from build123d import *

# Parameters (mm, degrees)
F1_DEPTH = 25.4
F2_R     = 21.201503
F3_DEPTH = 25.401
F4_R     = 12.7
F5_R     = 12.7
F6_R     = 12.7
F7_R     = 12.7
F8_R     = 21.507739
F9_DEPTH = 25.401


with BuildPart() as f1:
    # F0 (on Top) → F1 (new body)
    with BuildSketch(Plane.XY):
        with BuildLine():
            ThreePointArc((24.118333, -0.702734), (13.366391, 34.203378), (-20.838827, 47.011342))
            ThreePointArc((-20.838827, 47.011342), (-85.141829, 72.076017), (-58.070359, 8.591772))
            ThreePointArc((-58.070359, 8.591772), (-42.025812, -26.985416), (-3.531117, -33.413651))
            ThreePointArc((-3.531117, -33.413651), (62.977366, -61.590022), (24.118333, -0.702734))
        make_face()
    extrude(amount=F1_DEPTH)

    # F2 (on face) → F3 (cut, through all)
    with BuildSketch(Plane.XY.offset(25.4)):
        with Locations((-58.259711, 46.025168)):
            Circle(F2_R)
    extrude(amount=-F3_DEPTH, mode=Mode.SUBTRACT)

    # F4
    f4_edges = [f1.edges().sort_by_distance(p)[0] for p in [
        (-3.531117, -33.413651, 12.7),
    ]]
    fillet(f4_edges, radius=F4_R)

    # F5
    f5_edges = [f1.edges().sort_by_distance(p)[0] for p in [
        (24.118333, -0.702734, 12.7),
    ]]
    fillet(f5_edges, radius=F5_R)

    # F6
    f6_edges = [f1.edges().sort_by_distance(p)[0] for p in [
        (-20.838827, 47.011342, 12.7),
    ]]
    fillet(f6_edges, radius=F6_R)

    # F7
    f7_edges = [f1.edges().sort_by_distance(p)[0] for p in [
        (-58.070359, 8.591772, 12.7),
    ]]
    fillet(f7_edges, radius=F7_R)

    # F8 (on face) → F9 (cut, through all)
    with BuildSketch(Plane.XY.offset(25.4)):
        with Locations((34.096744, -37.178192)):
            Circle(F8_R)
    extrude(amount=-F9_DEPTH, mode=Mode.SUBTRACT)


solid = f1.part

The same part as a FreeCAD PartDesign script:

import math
import FreeCAD as App
import Part
import Sketcher


def edges_at(feature, points):
    """Names of the edges that pass closest to the given points."""
    edges = feature.Shape.Edges
    near = lambda p: min(range(len(edges)), key=lambda i: edges[i].distToShape(Part.Vertex(*p))[0])
    return sorted({f"Edge{near(p) + 1}" for p in points})

doc = App.newDocument("Part")
params = doc.addObject("Spreadsheet::Sheet", "Params")
for row, (alias, value) in enumerate([
    ("pad1_length", "1 in"),
    ("fillet_radius", "0.5 in"),
    ("fillet2_radius", "0.5 in"),
    ("fillet3_radius", "0.5 in"),
    ("fillet4_radius", "0.5 in"),
], start=1):
    params.set(f"A{row}", alias)
    params.set(f"B{row}", "=" + value)
    params.setAlias(f"B{row}", alias)

body = doc.addObject("PartDesign::Body", "Body")

# Sketch on XY plane
sketch1 = body.newObject("Sketcher::SketchObject", "Sketch")
sketch1.AttachmentSupport = (doc.getObject("XY_Plane"), [""])
sketch1.MapMode = "FlatFace"
sketch1.addGeometry(Part.ArcOfCircle(Part.Circle(App.Vector(-16.764679, 5.813279, 0), App.Vector(0, 0, 1), 41.399022), math.radians(-9.055745), math.radians(95.647717)), False)
sketch1.addGeometry(Part.ArcOfCircle(Part.Circle(App.Vector(-58.25971, 46.025168, 0), App.Vector(0, 0, 1), 37.433875), math.radians(1.509598), math.radians(270.289819)), False)
sketch1.addGeometry(Part.ArcOfCircle(Part.Circle(App.Vector(-16.764679, 5.813279, 0), App.Vector(0, 0, 1), 41.399024), math.radians(176.151704), math.radians(288.642292)), False)
sketch1.addGeometry(Part.ArcOfCircle(Part.Circle(App.Vector(34.096745, -37.178192, 0), App.Vector(0, 0, 1), 37.815708), math.radians(174.286761), math.radians(465.299789)), False)
sketch1.addConstraint(Sketcher.Constraint("Coincident", 0, 2, 1, 1))
sketch1.addConstraint(Sketcher.Constraint("Coincident", 1, 2, 2, 1))
sketch1.addConstraint(Sketcher.Constraint("Coincident", 2, 2, 3, 1))
sketch1.addConstraint(Sketcher.Constraint("Coincident", 3, 2, 0, 1))
sketch1.addConstraint(Sketcher.Constraint("Coincident", 2, 3, 0, 3))
sketch1.addConstraint(Sketcher.Constraint("Equal", 0, 2))
sketch1.addConstraint(Sketcher.Constraint("Radius", 0, 41.399022))
sketch1.addConstraint(Sketcher.Constraint("Radius", 1, 37.433875))
sketch1.addConstraint(Sketcher.Constraint("Radius", 3, 37.815708))
sketch1.addConstraint(Sketcher.Constraint("DistanceX", 0, 3, -1, 1, 16.764679))
sketch1.addConstraint(Sketcher.Constraint("DistanceY", -1, 1, 0, 3, 5.813279))
sketch1.addConstraint(Sketcher.Constraint("DistanceX", 1, 3, -1, 1, 58.25971))
sketch1.addConstraint(Sketcher.Constraint("DistanceY", -1, 1, 1, 3, 46.025168))
sketch1.addConstraint(Sketcher.Constraint("DistanceY", 2, 2, -1, 1, 33.413651))
sketch1.addConstraint(Sketcher.Constraint("DistanceY", 3, 3, 0, 3, 42.991471))
pad1 = body.newObject("PartDesign::Pad", "Pad")
pad1.Profile = sketch1
pad1.setExpression("Length", "Params.pad1_length")

# Sketch on XY plane
sketch2 = body.newObject("Sketcher::SketchObject", "Sketch001")
sketch2.AttachmentSupport = (doc.getObject("XY_Plane"), [""])
sketch2.MapMode = "FlatFace"
sketch2.AttachmentOffset = App.Placement(App.Vector(0, 0, 1 * 25.4), App.Rotation())
sketch2.addGeometry(Part.Circle(App.Vector(-58.259711, 46.025168, 0), App.Vector(0, 0, 1), 21.201503), False)
sketch2.addConstraint(Sketcher.Constraint("Diameter", 0, 42.403006))
sketch2.addConstraint(Sketcher.Constraint("DistanceX", 0, 3, -1, 1, 58.259711))
sketch2.addConstraint(Sketcher.Constraint("DistanceY", -1, 1, 0, 3, 46.025168))
pocket1 = body.newObject("PartDesign::Pocket", "Pocket")
pocket1.Profile = sketch2
pocket1.Type = "ThroughAll"
doc.recompute()

fillet = body.newObject("PartDesign::Fillet", "Fillet")
fillet.Base = (pocket1, edges_at(pocket1, [(-3.531, -33.414, 12.7)]))
fillet.setExpression("Radius", "Params.fillet_radius")
doc.recompute()

fillet2 = body.newObject("PartDesign::Fillet", "Fillet001")
fillet2.Base = (fillet, edges_at(fillet, [(24.118, -0.703, 12.7)]))
fillet2.setExpression("Radius", "Params.fillet2_radius")
doc.recompute()

fillet3 = body.newObject("PartDesign::Fillet", "Fillet002")
fillet3.Base = (fillet2, edges_at(fillet2, [(-20.839, 47.011, 12.7)]))
fillet3.setExpression("Radius", "Params.fillet3_radius")
doc.recompute()

fillet4 = body.newObject("PartDesign::Fillet", "Fillet003")
fillet4.Base = (fillet3, edges_at(fillet3, [(-58.07, 8.592, 12.7)]))
fillet4.setExpression("Radius", "Params.fillet4_radius")

# Sketch on XY plane
sketch3 = body.newObject("Sketcher::SketchObject", "Sketch002")
sketch3.AttachmentSupport = (doc.getObject("XY_Plane"), [""])
sketch3.MapMode = "FlatFace"
sketch3.AttachmentOffset = App.Placement(App.Vector(0, 0, 1 * 25.4), App.Rotation())
sketch3.addGeometry(Part.Circle(App.Vector(34.096744, -37.178192, 0), App.Vector(0, 0, 1), 21.507739), False)
sketch3.addConstraint(Sketcher.Constraint("Diameter", 0, 43.015478))
sketch3.addConstraint(Sketcher.Constraint("DistanceX", -1, 1, 0, 3, 34.096744))
sketch3.addConstraint(Sketcher.Constraint("DistanceY", 0, 3, -1, 1, 37.178192))
pocket2 = body.newObject("PartDesign::Pocket", "Pocket001")
pocket2.Profile = sketch3
pocket2.Type = "ThroughAll"

doc.recompute()
